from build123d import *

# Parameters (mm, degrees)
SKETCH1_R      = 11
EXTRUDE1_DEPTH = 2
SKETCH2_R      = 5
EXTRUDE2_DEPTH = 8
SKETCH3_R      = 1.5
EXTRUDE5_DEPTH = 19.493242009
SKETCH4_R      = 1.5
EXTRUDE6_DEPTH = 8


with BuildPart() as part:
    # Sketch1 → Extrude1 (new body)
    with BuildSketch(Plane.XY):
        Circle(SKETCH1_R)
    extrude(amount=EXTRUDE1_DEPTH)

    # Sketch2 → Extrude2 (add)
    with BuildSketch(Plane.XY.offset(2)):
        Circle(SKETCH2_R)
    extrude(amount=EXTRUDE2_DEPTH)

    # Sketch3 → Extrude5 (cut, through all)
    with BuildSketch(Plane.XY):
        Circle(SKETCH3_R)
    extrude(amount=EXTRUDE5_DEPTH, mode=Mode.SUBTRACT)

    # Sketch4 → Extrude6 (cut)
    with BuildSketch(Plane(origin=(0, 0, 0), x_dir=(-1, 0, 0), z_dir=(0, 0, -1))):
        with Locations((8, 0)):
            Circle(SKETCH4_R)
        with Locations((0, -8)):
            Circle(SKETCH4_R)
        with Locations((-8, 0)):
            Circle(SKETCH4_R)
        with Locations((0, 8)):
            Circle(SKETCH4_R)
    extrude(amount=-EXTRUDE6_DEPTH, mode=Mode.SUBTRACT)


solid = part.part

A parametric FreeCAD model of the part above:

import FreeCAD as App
import Part
import Sketcher
Q = App.Units.Quantity

doc = App.newDocument("Part")
body = doc.addObject("PartDesign::Body", "Body")

sketch1 = body.newObject("Sketcher::SketchObject", "Sketch")
sketch1.AttachmentSupport = (doc.getObject("XY_Plane"), [""])
sketch1.MapMode = "FlatFace"
sketch1.addGeometry(Part.Circle(App.Vector(0, 0, 0), App.Vector(0, 0, 1), 11), False)
sketch1.addConstraint([
    Sketcher.Constraint("Coincident", 0, 3, -1, 1),
    Sketcher.Constraint("Diameter", 0, Q("22 mm")),
])
pad1 = body.newObject("PartDesign::Pad", "Pad")
pad1.Profile = sketch1
pad1.Length = 2

sketch2 = body.newObject("Sketcher::SketchObject", "Sketch001")
sketch2.AttachmentSupport = (doc.getObject("XY_Plane"), [""])
sketch2.MapMode = "FlatFace"
sketch2.AttachmentOffset = App.Placement(App.Vector(0, 0, 2), App.Rotation())
sketch2.addGeometry(Part.Circle(App.Vector(0, 0, 0), App.Vector(0, 0, 1), 5), False)
sketch2.addConstraint([
    Sketcher.Constraint("Coincident", 0, 3, -1, 1),
    Sketcher.Constraint("Diameter", 0, Q("10 mm")),
])
pad2 = body.newObject("PartDesign::Pad", "Pad001")
pad2.Profile = sketch2
pad2.Length = 8

sketch3 = body.newObject("Sketcher::SketchObject", "Sketch002")
sketch3.AttachmentSupport = (doc.getObject("XY_Plane"), [""])
sketch3.MapMode = "FlatFace"
sketch3.addGeometry(Part.Circle(App.Vector(0, 0, 0), App.Vector(0, 0, 1), 1.5), False)
sketch3.addConstraint([
    Sketcher.Constraint("Coincident", 0, 3, -1, 1),
    Sketcher.Constraint("Diameter", 0, Q("3 mm")),
])
pocket1 = body.newObject("PartDesign::Pocket", "Pocket")
pocket1.Profile = sketch3
pocket1.Type = "ThroughAll"
pocket1.Reversed = True

sketch4 = body.newObject("Sketcher::SketchObject", "Sketch003")
sketch4.AttachmentSupport = (doc.getObject("XY_Plane"), [""])
sketch4.MapMode = "FlatFace"
sketch4.addGeometry([
    Part.Circle(App.Vector(-8, 0, 0), App.Vector(0, 0, 1), 1.5),
    Part.Circle(App.Vector(0, -8, 0), App.Vector(0, 0, 1), 1.5),
    Part.Circle(App.Vector(8, 0, 0), App.Vector(0, 0, 1), 1.5),
    Part.Circle(App.Vector(0, 8, 0), App.Vector(0, 0, 1), 1.5),
], False)
sketch4.addConstraint([
    Sketcher.Constraint("Equal", 0, 1),
    Sketcher.Constraint("Equal", 1, 2),
    Sketcher.Constraint("Equal", 2, 3),
    Sketcher.Constraint("Symmetric", 0, 3, 2, 3, -1, 1),
    Sketcher.Constraint("Symmetric", 1, 3, 3, 3, -1, 1),
    Sketcher.Constraint("PointOnObject", 0, 3, -1),
    Sketcher.Constraint("PointOnObject", 1, 3, -2),
    Sketcher.Constraint("Diameter", 0, Q("3 mm")),
    Sketcher.Constraint("DistanceX", 0, 3, -1, 1, Q("8 mm")),
    Sketcher.Constraint("DistanceY", 1, 3, -1, 1, Q("8 mm")),
])
pocket2 = body.newObject("PartDesign::Pocket", "Pocket001")
pocket2.Profile = sketch4
pocket2.Length = 8
pocket2.Reversed = True

doc.recompute()
